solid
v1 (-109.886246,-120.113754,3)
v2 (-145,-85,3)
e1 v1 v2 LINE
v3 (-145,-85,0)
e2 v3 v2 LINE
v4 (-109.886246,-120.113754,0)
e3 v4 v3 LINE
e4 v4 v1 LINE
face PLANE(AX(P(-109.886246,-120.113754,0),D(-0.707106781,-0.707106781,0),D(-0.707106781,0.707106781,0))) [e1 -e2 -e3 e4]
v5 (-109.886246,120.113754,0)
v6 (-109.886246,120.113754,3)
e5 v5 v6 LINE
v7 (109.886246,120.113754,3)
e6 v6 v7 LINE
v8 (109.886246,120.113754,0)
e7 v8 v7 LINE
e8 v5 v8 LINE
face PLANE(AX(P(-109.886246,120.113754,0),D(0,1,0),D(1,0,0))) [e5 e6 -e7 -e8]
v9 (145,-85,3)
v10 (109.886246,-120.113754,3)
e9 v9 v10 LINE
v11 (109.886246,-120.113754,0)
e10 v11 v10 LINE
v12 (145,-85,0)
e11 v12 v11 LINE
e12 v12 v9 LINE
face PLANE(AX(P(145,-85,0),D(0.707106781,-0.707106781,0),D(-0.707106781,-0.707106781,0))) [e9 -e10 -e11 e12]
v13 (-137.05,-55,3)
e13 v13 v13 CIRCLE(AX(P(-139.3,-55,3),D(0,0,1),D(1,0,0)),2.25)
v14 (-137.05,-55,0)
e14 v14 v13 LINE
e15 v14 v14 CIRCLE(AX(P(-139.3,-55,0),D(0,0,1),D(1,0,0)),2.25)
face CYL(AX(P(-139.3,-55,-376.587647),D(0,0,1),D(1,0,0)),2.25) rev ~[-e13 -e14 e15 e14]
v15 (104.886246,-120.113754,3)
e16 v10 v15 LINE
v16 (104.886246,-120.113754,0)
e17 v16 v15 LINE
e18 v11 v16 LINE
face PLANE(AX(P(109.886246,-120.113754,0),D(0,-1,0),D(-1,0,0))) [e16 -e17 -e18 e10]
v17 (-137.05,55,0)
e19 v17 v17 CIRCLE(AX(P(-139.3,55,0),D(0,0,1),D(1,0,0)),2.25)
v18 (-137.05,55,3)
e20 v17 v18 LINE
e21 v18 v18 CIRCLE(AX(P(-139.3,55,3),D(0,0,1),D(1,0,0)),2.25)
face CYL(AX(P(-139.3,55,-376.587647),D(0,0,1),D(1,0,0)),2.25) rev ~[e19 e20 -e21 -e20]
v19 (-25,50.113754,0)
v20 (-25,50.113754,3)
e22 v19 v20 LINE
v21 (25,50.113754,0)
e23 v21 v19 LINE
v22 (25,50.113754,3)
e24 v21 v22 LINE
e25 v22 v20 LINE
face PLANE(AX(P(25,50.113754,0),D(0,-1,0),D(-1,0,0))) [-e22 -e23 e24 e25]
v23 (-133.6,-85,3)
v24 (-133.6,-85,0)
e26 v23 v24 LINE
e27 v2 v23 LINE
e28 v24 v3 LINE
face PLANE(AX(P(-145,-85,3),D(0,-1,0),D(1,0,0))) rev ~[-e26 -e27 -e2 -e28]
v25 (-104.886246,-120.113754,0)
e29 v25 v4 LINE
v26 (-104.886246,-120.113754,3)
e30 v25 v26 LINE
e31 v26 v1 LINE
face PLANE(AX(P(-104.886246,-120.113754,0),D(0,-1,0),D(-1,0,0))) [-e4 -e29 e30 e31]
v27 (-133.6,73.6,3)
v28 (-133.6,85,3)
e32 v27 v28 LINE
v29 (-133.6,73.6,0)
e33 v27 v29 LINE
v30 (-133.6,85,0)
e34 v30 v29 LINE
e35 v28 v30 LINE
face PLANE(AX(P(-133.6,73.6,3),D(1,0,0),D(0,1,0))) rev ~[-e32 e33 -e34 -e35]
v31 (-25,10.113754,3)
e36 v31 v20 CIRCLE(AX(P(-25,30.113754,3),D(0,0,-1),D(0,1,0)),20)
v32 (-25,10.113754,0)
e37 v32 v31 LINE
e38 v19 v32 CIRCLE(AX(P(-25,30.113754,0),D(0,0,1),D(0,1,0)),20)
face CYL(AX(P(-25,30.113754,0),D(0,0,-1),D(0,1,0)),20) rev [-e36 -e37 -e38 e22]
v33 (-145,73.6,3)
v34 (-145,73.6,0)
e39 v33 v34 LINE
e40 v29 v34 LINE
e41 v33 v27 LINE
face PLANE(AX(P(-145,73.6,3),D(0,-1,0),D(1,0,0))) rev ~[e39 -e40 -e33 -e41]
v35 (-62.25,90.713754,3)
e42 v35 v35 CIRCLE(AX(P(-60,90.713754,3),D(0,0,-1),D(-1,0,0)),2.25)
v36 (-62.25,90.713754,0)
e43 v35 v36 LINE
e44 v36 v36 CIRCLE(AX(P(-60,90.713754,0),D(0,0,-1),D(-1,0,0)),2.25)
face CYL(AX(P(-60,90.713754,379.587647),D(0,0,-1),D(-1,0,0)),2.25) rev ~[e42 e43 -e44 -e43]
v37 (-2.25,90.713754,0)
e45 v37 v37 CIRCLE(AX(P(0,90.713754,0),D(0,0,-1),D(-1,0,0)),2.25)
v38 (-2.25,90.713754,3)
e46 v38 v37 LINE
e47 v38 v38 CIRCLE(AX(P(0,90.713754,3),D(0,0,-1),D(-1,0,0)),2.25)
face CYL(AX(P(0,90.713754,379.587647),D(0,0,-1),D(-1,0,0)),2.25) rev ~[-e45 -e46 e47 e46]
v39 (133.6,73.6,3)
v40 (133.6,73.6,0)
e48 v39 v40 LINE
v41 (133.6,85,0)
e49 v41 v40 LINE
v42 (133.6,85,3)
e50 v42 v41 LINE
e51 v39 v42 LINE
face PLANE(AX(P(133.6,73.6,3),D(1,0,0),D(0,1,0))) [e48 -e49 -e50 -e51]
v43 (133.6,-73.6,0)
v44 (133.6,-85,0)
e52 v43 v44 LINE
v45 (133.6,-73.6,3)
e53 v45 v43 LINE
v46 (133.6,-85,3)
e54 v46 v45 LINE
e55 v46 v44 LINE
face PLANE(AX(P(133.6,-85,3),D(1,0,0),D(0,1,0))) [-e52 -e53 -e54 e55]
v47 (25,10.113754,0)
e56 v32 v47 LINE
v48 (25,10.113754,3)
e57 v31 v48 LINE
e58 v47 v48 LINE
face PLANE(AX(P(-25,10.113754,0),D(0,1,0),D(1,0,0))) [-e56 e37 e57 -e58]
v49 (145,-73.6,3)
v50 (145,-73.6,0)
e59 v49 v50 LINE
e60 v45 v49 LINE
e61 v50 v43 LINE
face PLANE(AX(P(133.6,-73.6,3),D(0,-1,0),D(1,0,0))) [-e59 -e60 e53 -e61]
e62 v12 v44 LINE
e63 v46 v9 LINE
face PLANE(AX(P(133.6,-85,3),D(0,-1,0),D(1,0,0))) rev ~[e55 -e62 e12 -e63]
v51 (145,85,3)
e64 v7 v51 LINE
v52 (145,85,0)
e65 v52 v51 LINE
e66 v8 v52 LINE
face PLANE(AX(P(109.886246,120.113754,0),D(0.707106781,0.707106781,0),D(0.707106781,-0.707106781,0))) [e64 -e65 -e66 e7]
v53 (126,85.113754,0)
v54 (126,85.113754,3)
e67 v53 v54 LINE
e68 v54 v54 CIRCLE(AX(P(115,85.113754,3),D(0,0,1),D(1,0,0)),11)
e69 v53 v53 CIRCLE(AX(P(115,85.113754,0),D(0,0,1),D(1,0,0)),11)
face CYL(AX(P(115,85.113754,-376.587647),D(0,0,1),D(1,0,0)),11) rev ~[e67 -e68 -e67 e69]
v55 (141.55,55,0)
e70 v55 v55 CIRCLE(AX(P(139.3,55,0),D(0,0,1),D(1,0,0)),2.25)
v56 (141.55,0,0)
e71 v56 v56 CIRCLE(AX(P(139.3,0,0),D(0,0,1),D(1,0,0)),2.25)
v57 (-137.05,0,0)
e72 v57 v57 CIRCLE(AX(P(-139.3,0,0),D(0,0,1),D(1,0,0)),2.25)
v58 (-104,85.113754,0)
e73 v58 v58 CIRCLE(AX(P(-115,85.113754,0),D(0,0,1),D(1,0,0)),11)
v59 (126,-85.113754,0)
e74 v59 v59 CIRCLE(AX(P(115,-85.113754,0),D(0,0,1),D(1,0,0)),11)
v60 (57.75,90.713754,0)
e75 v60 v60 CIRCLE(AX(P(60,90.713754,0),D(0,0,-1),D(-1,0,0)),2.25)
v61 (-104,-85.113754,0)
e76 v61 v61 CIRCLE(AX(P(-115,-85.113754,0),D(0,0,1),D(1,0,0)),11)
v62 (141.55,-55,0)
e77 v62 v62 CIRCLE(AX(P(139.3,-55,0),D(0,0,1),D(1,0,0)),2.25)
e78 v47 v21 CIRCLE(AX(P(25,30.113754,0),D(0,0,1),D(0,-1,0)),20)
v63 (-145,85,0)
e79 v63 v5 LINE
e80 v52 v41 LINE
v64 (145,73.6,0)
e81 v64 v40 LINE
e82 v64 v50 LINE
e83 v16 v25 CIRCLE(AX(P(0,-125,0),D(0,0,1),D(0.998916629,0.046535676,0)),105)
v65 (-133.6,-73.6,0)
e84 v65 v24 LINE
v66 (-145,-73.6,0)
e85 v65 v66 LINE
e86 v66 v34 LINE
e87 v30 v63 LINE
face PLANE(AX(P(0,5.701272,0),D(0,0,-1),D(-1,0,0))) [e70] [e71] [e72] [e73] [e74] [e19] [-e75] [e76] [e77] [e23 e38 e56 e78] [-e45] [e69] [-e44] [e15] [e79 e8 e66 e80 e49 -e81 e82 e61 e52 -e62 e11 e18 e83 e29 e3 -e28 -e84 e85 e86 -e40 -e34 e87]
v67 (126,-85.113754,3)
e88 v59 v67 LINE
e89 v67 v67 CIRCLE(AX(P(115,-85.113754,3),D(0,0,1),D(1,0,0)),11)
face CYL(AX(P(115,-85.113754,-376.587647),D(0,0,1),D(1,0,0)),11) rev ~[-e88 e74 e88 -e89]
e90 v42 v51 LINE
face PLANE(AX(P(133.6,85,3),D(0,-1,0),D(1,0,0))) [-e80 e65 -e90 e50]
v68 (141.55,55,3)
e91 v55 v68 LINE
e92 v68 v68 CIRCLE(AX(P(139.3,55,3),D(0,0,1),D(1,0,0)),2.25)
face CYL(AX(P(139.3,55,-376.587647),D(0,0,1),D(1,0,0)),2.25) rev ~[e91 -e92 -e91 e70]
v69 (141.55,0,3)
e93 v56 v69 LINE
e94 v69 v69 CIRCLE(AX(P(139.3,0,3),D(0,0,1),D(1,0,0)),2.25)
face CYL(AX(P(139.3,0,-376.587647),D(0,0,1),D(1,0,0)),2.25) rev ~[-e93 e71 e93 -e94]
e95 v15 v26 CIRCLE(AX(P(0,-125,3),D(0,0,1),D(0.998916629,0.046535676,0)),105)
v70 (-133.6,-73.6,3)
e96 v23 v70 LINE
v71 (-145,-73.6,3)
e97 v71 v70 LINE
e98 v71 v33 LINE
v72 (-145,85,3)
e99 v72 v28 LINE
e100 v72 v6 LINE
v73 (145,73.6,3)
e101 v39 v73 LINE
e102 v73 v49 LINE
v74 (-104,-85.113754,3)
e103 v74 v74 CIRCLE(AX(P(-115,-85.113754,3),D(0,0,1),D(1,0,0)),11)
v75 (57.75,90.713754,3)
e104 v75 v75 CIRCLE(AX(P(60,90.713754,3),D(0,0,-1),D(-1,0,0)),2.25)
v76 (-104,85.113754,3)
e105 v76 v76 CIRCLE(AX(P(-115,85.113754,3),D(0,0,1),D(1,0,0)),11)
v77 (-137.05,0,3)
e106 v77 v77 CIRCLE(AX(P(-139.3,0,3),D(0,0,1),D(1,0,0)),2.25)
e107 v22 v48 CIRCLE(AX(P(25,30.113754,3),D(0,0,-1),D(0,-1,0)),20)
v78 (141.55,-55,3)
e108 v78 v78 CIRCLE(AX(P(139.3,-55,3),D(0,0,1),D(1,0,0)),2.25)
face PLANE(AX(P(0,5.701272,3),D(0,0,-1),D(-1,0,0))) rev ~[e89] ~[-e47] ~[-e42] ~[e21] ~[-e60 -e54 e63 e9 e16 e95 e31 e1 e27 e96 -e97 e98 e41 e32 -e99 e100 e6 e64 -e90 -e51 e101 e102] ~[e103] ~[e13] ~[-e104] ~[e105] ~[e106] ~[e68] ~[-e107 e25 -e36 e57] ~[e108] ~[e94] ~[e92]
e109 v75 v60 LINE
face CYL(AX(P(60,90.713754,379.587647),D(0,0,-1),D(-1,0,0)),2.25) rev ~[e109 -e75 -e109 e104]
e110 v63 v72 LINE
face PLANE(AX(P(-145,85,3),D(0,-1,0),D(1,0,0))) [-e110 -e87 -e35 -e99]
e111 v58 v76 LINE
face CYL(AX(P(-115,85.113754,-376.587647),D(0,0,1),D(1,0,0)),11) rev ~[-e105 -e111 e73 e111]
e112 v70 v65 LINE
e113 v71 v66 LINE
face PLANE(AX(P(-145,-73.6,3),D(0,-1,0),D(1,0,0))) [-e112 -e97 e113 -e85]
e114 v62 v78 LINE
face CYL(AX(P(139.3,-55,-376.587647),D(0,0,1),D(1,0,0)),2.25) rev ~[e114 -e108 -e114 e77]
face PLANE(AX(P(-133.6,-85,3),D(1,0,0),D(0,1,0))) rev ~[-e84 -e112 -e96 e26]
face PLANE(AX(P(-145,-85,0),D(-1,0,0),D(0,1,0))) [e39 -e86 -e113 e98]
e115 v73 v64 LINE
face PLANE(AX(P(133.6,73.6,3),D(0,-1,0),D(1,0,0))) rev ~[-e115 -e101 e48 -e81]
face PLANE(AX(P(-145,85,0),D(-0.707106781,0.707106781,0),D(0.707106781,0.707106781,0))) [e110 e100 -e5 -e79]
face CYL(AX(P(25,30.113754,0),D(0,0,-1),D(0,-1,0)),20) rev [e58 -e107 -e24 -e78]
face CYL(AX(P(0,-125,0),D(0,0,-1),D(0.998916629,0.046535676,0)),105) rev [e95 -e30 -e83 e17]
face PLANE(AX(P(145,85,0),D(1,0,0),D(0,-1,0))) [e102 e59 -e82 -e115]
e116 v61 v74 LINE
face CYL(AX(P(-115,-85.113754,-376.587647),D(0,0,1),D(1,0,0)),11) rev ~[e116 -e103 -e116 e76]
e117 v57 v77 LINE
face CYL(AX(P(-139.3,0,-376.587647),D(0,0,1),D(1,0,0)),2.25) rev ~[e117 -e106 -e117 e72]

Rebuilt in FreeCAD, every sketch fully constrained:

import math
import FreeCAD as App
import Part
import Sketcher

V = App.Vector

doc = App.newDocument("Part")
params = doc.addObject("Spreadsheet::Sheet", "Params")
for row, (alias, value) in enumerate([
    ("sketch1_radius", "105 mm"),
    ("sketch1_width", "5 mm"),
    ("sketch1_height", "170 mm"),
    ("pad1_length", "3 mm"),
    ("sketch2_width", "11.4 mm"),
    ("sketch3_diameter", "4.5 mm"),
    ("hole_diameter", "4.5 mm"),
    ("sketch4_diameter", "4.5 mm"),
    ("hole2_diameter", "4.5 mm"),
    ("sketch5_diameter", "22 mm"),
    ("hole3_diameter", "22 mm"),
    ("sketch6_radius", "20 mm"),
    ("sketch6_width", "50 mm"),
], start=1):
    params.set(f"A{row}", alias)
    params.set(f"B{row}", "=" + value)
    params.setAlias(f"B{row}", alias)

body = doc.addObject("PartDesign::Body", "Body")

# Sketch on XY plane
sketch1 = body.newObject("Sketcher::SketchObject", "Sketch")
sketch1.AttachmentSupport = (doc.getObject("XY_Plane"), [""])
sketch1.MapMode = "FlatFace"
sketch1.addGeometry([
    Part.LineSegment(V(-109.886246, 120.113754, 0), V(-145, 85, 0)),  # 0
    Part.LineSegment(V(-145, 85, 0), V(-145, -85, 0)),  # 1
    Part.LineSegment(V(-145, -85, 0), V(-109.886246, -120.113754, 0)),  # 2
    Part.LineSegment(V(-109.886246, -120.113754, 0), V(-104.886246, -120.113754, 0)),  # 3
    Part.ArcOfCircle(Part.Circle(V(0, -125, 0), V(0, 0, 1), 105), math.radians(2.667261), math.radians(177.332739)),  # 4
    Part.LineSegment(V(104.886246, -120.113754, 0), V(109.886246, -120.113754, 0)),  # 5
    Part.LineSegment(V(109.886246, -120.113754, 0), V(145, -85, 0)),  # 6
    Part.LineSegment(V(145, -85, 0), V(145, 85, 0)),  # 7
    Part.LineSegment(V(145, 85, 0), V(109.886246, 120.113754, 0)),  # 8
    Part.LineSegment(V(109.886246, 120.113754, 0), V(-109.886246, 120.113754, 0)),  # 9
], False)
sketch1.addConstraint([
    Sketcher.Constraint("Coincident", 0, 2, 1, 1),
    Sketcher.Constraint("Coincident", 1, 2, 2, 1),
    Sketcher.Constraint("Coincident", 2, 2, 3, 1),
    Sketcher.Constraint("Coincident", 3, 2, 4, 2),
    Sketcher.Constraint("Coincident", 4, 1, 5, 1),
    Sketcher.Constraint("Coincident", 5, 2, 6, 1),
    Sketcher.Constraint("Coincident", 6, 2, 7, 1),
    Sketcher.Constraint("Coincident", 7, 2, 8, 1),
    Sketcher.Constraint("Coincident", 8, 2, 9, 1),
    Sketcher.Constraint("Coincident", 9, 2, 0, 1),
    Sketcher.Constraint("Vertical", 1),
    Sketcher.Constraint("Horizontal", 3),
    Sketcher.Constraint("Horizontal", 5),
    Sketcher.Constraint("Vertical", 7),
    Sketcher.Constraint("Horizontal", 9),
    Sketcher.Constraint("Symmetric", 0, 2, 6, 2, -1, 1),
    Sketcher.Constraint("Symmetric", 2, 2, 8, 2, -1, 1),
    Sketcher.Constraint("Symmetric", 5, 2, 9, 2, -1, 1),
    Sketcher.Constraint("PointOnObject", 4, 3, -2),
    Sketcher.Constraint("Perpendicular", 0, 2),
    Sketcher.Constraint("Perpendicular", 6, 8),
    Sketcher.Constraint("Horizontal", 1, 2, 6, 2),
    Sketcher.Constraint("Vertical", 5, 2, 8, 2),
    Sketcher.Constraint("Radius", 4, 105.0),
    Sketcher.Constraint("DistanceX", 3, 1, 3, 2, 5.0),
    Sketcher.Constraint("DistanceY", 1, 2, 1, 1, 170.0),
    Sketcher.Constraint("DistanceY", 4, 3, -1, 1, 125.0),
    Sketcher.Constraint("DistanceX", 0, 2, -1, 1, 145.0),
])
sketch1.setExpression("Constraints[23]", "Params.sketch1_radius")
sketch1.setExpression("Constraints[24]", "Params.sketch1_width")
sketch1.setExpression("Constraints[25]", "Params.sketch1_height")
pad1 = body.newObject("PartDesign::Pad", "Pad")
pad1.Profile = sketch1
pad1.setExpression("Length", "Params.pad1_length")

# Sketch on XY plane
sketch2 = body.newObject("Sketcher::SketchObject", "Sketch001")
sketch2.AttachmentSupport = (doc.getObject("XY_Plane"), [""])
sketch2.MapMode = "FlatFace"
sketch2.AttachmentOffset = App.Placement(V(0, 0, 3), App.Rotation())
sketch2.addGeometry([
    Part.LineSegment(V(-145, 85, 0), V(-145, 73.6, 0)),  # 0
    Part.LineSegment(V(-145, 73.6, 0), V(-133.6, 73.6, 0)),  # 1
    Part.LineSegment(V(-133.6, 73.6, 0), V(-133.6, 85, 0)),  # 2
    Part.LineSegment(V(-133.6, 85, 0), V(-145, 85, 0)),  # 3
    Part.LineSegment(V(133.6, 85, 0), V(133.6, 73.6, 0)),  # 4
    Part.LineSegment(V(133.6, 73.6, 0), V(145, 73.6, 0)),  # 5
    Part.LineSegment(V(145, 73.6, 0), V(145, 85, 0)),  # 6
    Part.LineSegment(V(145, 85, 0), V(133.6, 85, 0)),  # 7
    Part.LineSegment(V(-145, -73.6, 0), V(-145, -85, 0)),  # 8
    Part.LineSegment(V(-145, -85, 0), V(-133.6, -85, 0)),  # 9
    Part.LineSegment(V(-133.6, -85, 0), V(-133.6, -73.6, 0)),  # 10
    Part.LineSegment(V(-133.6, -73.6, 0), V(-145, -73.6, 0)),  # 11
    Part.LineSegment(V(133.6, -73.6, 0), V(133.6, -85, 0)),  # 12
    Part.LineSegment(V(133.6, -85, 0), V(145, -85, 0)),  # 13
    Part.LineSegment(V(145, -85, 0), V(145, -73.6, 0)),  # 14
    Part.LineSegment(V(145, -73.6, 0), V(133.6, -73.6, 0)),  # 15
], False)
sketch2.addConstraint([
    Sketcher.Constraint("Coincident", 0, 2, 1, 1),
    Sketcher.Constraint("Coincident", 1, 2, 2, 1),
    Sketcher.Constraint("Coincident", 2, 2, 3, 1),
    Sketcher.Constraint("Coincident", 3, 2, 0, 1),
    Sketcher.Constraint("Coincident", 4, 2, 5, 1),
    Sketcher.Constraint("Coincident", 5, 2, 6, 1),
    Sketcher.Constraint("Coincident", 6, 2, 7, 1),
    Sketcher.Constraint("Coincident", 7, 2, 4, 1),
    Sketcher.Constraint("Coincident", 8, 2, 9, 1),
    Sketcher.Constraint("Coincident", 9, 2, 10, 1),
    Sketcher.Constraint("Coincident", 10, 2, 11, 1),
    Sketcher.Constraint("Coincident", 11, 2, 8, 1),
    Sketcher.Constraint("Coincident", 12, 2, 13, 1),
    Sketcher.Constraint("Coincident", 13, 2, 14, 1),
    Sketcher.Constraint("Coincident", 14, 2, 15, 1),
    Sketcher.Constraint("Coincident", 15, 2, 12, 1),
    Sketcher.Constraint("Vertical", 0),
    Sketcher.Constraint("Horizontal", 1),
    Sketcher.Constraint("Vertical", 2),
    Sketcher.Constraint("Horizontal", 3),
    Sketcher.Constraint("Vertical", 4),
    Sketcher.Constraint("Horizontal", 5),
    Sketcher.Constraint("Vertical", 6),
    Sketcher.Constraint("Horizontal", 7),
    Sketcher.Constraint("Vertical", 8),
    Sketcher.Constraint("Horizontal", 9),
    Sketcher.Constraint("Vertical", 10),
    Sketcher.Constraint("Horizontal", 11),
    Sketcher.Constraint("Vertical", 12),
    Sketcher.Constraint("Horizontal", 13),
    Sketcher.Constraint("Vertical", 14),
    Sketcher.Constraint("Horizontal", 15),
    Sketcher.Constraint("Symmetric", 6, 2, 8, 2, -1, 1),
    Sketcher.Constraint("Symmetric", 4, 2, 10, 2, -1, 1),
    Sketcher.Constraint("Symmetric", 2, 2, 12, 2, -1, 1),
    Sketcher.Constraint("Symmetric", 0, 2, 14, 2, -1, 1),
    Sketcher.Constraint("Symmetric", 1, 2, 4, 2, -2),
    Sketcher.Constraint("Symmetric", 3, 2, 6, 2, -2),
    Sketcher.Constraint("Equal", 15, 0),
    Sketcher.Constraint("DistanceX", 1, 1, 1, 2, 11.4),
    Sketcher.Constraint("DistanceX", 0, 2, -1, 1, 145.0),
    Sketcher.Constraint("DistanceY", -1, 1, 2, 2, 85.0),
])
sketch2.setExpression("Constraints[39]", "Params.sketch2_width")
pocket1 = body.newObject("PartDesign::Pocket", "Pocket")
pocket1.Profile = sketch2
pocket1.Type = "ThroughAll"

# Sketch on XY plane
sketch3 = body.newObject("Sketcher::SketchObject", "Sketch002")
sketch3.AttachmentSupport = (doc.getObject("XY_Plane"), [""])
sketch3.MapMode = "FlatFace"
sketch3.addGeometry([
    Part.Circle(V(139.3, 55, 0), V(0, 0, 1), 2.25),  # 0
    Part.Circle(V(139.3, 0, 0), V(0, 0, 1), 2.25),  # 1
    Part.Circle(V(139.3, -55, 0), V(0, 0, 1), 2.25),  # 2
    Part.Circle(V(-139.3, 55, 0), V(0, 0, 1), 2.25),  # 3
    Part.Circle(V(-139.3, 0, 0), V(0, 0, 1), 2.25),  # 4
    Part.Circle(V(-139.3, -55, 0), V(0, 0, 1), 2.25),  # 5
], False)
sketch3.addConstraint([
    Sketcher.Constraint("Equal", 0, 1),
    Sketcher.Constraint("Equal", 1, 2),
    Sketcher.Constraint("Equal", 2, 3),
    Sketcher.Constraint("Equal", 3, 4),
    Sketcher.Constraint("Equal", 4, 5),
    Sketcher.Constraint("Symmetric", 2, 3, 3, 3, -1, 1),
    Sketcher.Constraint("Symmetric", 1, 3, 4, 3, -1, 1),
    Sketcher.Constraint("Symmetric", 0, 3, 5, 3, -1, 1),
    Sketcher.Constraint("Symmetric", 0, 3, 3, 3, -2),
    Sketcher.Constraint("PointOnObject", 1, 3, -1),
    Sketcher.Constraint("Vertical", 0, 3, 1, 3),
    Sketcher.Constraint("Diameter", 0, 4.5),
    Sketcher.Constraint("DistanceY", -1, 1, 0, 3, 55.0),
    Sketcher.Constraint("DistanceX", -1, 1, 0, 3, 139.3),
])
sketch3.setExpression("Constraints[11]", "Params.sketch3_diameter")
doc.recompute()
hole = body.newObject("PartDesign::Hole", "Hole")
hole.Profile = sketch3
hole.ThreadType = "None"
hole.setExpression("Diameter", "Params.hole_diameter")
hole.DepthType = "ThroughAll"
hole.Reversed = True

# Sketch on XY plane
sketch4 = body.newObject("Sketcher::SketchObject", "Sketch003")
sketch4.AttachmentSupport = (doc.getObject("XY_Plane"), [""])
sketch4.MapMode = "FlatFace"
sketch4.AttachmentOffset = App.Placement(V(0, 0, 3), App.Rotation())
sketch4.addGeometry([
    Part.Circle(V(-60, 90.713754, 0), V(0, 0, 1), 2.25),
    Part.Circle(V(0, 90.713754, 0), V(0, 0, 1), 2.25),
    Part.Circle(V(60, 90.713754, 0), V(0, 0, 1), 2.25),
], False)
sketch4.addConstraint([
    Sketcher.Constraint("Equal", 0, 1),
    Sketcher.Constraint("Equal", 1, 2),
    Sketcher.Constraint("Symmetric", 0, 3, 2, 3, -2),
    Sketcher.Constraint("PointOnObject", 1, 3, -2),
    Sketcher.Constraint("Horizontal", 0, 3, 1, 3),
    Sketcher.Constraint("Diameter", 0, 4.5),
    Sketcher.Constraint("DistanceX", 0, 3, -1, 1, 60.0),
    Sketcher.Constraint("DistanceY", -1, 1, 0, 3, 90.713754),
])
sketch4.setExpression("Constraints[5]", "Params.sketch4_diameter")
doc.recompute()
hole2 = body.newObject("PartDesign::Hole", "Hole001")
hole2.Profile = sketch4
hole2.ThreadType = "None"
hole2.setExpression("Diameter", "Params.hole2_diameter")
hole2.DepthType = "ThroughAll"

# Sketch on XY plane
sketch5 = body.newObject("Sketcher::SketchObject", "Sketch004")
sketch5.AttachmentSupport = (doc.getObject("XY_Plane"), [""])
sketch5.MapMode = "FlatFace"
sketch5.addGeometry([
    Part.Circle(V(115, 85.113754, 0), V(0, 0, 1), 11),
    Part.Circle(V(115, -85.113754, 0), V(0, 0, 1), 11),
    Part.Circle(V(-115, 85.113754, 0), V(0, 0, 1), 11),
    Part.Circle(V(-115, -85.113754, 0), V(0, 0, 1), 11),
], False)
sketch5.addConstraint([
    Sketcher.Constraint("Equal", 0, 1),
    Sketcher.Constraint("Equal", 1, 2),
    Sketcher.Constraint("Equal", 2, 3),
    Sketcher.Constraint("Symmetric", 1, 3, 2, 3, -1, 1),
    Sketcher.Constraint("Symmetric", 0, 3, 3, 3, -1, 1),
    Sketcher.Constraint("Symmetric", 0, 3, 2, 3, -2),
    Sketcher.Constraint("Diameter", 0, 22.0),
    Sketcher.Constraint("DistanceX", -1, 1, 0, 3, 115.0),
    Sketcher.Constraint("DistanceY", 1, 3, 0, 3, 170.227508),
])
sketch5.setExpression("Constraints[6]", "Params.sketch5_diameter")
doc.recompute()
hole3 = body.newObject("PartDesign::Hole", "Hole002")
hole3.Profile = sketch5
hole3.ThreadType = "None"
hole3.setExpression("Diameter", "Params.hole3_diameter")
hole3.DepthType = "ThroughAll"
hole3.Reversed = True

# Sketch on XY plane
sketch6 = body.newObject("Sketcher::SketchObject", "Sketch005")
sketch6.AttachmentSupport = (doc.getObject("XY_Plane"), [""])
sketch6.MapMode = "FlatFace"
sketch6.addGeometry([
    Part.LineSegment(V(-25, 50.113754, 0), V(25, 50.113754, 0)),
    Part.ArcOfCircle(Part.Circle(V(25, 30.113754, 0), V(0, 0, 1), 20), math.radians(-90), math.radians(90)),
    Part.LineSegment(V(25, 10.113754, 0), V(-25, 10.113754, 0)),
    Part.ArcOfCircle(Part.Circle(V(-25, 30.113754, 0), V(0, 0, 1), 20), math.radians(90), math.radians(270)),
], False)
sketch6.addConstraint([
    Sketcher.Constraint("Tangent", 0, 2, 1, 2),
    Sketcher.Constraint("Tangent", 1, 1, 2, 1),
    Sketcher.Constraint("Tangent", 2, 2, 3, 2),
    Sketcher.Constraint("Tangent", 3, 1, 0, 1),
    Sketcher.Constraint("Horizontal", 0),
    Sketcher.Constraint("Horizontal", 2),
    Sketcher.Constraint("Radius", 1, 20.0),
    Sketcher.Constraint("DistanceX", 0, 1, 0, 2, 50.0),
    Sketcher.Constraint("DistanceX", -1, 1, 1, 3, 25.0),
    Sketcher.Constraint("DistanceY", -1, 1, 1, 3, 30.113754),
])
sketch6.setExpression("Constraints[6]", "Params.sketch6_radius")
sketch6.setExpression("Constraints[7]", "Params.sketch6_width")
pocket2 = body.newObject("PartDesign::Pocket", "Pocket001")
pocket2.Profile = sketch6
pocket2.Type = "ThroughAll"
pocket2.Reversed = True

doc.recompute()
